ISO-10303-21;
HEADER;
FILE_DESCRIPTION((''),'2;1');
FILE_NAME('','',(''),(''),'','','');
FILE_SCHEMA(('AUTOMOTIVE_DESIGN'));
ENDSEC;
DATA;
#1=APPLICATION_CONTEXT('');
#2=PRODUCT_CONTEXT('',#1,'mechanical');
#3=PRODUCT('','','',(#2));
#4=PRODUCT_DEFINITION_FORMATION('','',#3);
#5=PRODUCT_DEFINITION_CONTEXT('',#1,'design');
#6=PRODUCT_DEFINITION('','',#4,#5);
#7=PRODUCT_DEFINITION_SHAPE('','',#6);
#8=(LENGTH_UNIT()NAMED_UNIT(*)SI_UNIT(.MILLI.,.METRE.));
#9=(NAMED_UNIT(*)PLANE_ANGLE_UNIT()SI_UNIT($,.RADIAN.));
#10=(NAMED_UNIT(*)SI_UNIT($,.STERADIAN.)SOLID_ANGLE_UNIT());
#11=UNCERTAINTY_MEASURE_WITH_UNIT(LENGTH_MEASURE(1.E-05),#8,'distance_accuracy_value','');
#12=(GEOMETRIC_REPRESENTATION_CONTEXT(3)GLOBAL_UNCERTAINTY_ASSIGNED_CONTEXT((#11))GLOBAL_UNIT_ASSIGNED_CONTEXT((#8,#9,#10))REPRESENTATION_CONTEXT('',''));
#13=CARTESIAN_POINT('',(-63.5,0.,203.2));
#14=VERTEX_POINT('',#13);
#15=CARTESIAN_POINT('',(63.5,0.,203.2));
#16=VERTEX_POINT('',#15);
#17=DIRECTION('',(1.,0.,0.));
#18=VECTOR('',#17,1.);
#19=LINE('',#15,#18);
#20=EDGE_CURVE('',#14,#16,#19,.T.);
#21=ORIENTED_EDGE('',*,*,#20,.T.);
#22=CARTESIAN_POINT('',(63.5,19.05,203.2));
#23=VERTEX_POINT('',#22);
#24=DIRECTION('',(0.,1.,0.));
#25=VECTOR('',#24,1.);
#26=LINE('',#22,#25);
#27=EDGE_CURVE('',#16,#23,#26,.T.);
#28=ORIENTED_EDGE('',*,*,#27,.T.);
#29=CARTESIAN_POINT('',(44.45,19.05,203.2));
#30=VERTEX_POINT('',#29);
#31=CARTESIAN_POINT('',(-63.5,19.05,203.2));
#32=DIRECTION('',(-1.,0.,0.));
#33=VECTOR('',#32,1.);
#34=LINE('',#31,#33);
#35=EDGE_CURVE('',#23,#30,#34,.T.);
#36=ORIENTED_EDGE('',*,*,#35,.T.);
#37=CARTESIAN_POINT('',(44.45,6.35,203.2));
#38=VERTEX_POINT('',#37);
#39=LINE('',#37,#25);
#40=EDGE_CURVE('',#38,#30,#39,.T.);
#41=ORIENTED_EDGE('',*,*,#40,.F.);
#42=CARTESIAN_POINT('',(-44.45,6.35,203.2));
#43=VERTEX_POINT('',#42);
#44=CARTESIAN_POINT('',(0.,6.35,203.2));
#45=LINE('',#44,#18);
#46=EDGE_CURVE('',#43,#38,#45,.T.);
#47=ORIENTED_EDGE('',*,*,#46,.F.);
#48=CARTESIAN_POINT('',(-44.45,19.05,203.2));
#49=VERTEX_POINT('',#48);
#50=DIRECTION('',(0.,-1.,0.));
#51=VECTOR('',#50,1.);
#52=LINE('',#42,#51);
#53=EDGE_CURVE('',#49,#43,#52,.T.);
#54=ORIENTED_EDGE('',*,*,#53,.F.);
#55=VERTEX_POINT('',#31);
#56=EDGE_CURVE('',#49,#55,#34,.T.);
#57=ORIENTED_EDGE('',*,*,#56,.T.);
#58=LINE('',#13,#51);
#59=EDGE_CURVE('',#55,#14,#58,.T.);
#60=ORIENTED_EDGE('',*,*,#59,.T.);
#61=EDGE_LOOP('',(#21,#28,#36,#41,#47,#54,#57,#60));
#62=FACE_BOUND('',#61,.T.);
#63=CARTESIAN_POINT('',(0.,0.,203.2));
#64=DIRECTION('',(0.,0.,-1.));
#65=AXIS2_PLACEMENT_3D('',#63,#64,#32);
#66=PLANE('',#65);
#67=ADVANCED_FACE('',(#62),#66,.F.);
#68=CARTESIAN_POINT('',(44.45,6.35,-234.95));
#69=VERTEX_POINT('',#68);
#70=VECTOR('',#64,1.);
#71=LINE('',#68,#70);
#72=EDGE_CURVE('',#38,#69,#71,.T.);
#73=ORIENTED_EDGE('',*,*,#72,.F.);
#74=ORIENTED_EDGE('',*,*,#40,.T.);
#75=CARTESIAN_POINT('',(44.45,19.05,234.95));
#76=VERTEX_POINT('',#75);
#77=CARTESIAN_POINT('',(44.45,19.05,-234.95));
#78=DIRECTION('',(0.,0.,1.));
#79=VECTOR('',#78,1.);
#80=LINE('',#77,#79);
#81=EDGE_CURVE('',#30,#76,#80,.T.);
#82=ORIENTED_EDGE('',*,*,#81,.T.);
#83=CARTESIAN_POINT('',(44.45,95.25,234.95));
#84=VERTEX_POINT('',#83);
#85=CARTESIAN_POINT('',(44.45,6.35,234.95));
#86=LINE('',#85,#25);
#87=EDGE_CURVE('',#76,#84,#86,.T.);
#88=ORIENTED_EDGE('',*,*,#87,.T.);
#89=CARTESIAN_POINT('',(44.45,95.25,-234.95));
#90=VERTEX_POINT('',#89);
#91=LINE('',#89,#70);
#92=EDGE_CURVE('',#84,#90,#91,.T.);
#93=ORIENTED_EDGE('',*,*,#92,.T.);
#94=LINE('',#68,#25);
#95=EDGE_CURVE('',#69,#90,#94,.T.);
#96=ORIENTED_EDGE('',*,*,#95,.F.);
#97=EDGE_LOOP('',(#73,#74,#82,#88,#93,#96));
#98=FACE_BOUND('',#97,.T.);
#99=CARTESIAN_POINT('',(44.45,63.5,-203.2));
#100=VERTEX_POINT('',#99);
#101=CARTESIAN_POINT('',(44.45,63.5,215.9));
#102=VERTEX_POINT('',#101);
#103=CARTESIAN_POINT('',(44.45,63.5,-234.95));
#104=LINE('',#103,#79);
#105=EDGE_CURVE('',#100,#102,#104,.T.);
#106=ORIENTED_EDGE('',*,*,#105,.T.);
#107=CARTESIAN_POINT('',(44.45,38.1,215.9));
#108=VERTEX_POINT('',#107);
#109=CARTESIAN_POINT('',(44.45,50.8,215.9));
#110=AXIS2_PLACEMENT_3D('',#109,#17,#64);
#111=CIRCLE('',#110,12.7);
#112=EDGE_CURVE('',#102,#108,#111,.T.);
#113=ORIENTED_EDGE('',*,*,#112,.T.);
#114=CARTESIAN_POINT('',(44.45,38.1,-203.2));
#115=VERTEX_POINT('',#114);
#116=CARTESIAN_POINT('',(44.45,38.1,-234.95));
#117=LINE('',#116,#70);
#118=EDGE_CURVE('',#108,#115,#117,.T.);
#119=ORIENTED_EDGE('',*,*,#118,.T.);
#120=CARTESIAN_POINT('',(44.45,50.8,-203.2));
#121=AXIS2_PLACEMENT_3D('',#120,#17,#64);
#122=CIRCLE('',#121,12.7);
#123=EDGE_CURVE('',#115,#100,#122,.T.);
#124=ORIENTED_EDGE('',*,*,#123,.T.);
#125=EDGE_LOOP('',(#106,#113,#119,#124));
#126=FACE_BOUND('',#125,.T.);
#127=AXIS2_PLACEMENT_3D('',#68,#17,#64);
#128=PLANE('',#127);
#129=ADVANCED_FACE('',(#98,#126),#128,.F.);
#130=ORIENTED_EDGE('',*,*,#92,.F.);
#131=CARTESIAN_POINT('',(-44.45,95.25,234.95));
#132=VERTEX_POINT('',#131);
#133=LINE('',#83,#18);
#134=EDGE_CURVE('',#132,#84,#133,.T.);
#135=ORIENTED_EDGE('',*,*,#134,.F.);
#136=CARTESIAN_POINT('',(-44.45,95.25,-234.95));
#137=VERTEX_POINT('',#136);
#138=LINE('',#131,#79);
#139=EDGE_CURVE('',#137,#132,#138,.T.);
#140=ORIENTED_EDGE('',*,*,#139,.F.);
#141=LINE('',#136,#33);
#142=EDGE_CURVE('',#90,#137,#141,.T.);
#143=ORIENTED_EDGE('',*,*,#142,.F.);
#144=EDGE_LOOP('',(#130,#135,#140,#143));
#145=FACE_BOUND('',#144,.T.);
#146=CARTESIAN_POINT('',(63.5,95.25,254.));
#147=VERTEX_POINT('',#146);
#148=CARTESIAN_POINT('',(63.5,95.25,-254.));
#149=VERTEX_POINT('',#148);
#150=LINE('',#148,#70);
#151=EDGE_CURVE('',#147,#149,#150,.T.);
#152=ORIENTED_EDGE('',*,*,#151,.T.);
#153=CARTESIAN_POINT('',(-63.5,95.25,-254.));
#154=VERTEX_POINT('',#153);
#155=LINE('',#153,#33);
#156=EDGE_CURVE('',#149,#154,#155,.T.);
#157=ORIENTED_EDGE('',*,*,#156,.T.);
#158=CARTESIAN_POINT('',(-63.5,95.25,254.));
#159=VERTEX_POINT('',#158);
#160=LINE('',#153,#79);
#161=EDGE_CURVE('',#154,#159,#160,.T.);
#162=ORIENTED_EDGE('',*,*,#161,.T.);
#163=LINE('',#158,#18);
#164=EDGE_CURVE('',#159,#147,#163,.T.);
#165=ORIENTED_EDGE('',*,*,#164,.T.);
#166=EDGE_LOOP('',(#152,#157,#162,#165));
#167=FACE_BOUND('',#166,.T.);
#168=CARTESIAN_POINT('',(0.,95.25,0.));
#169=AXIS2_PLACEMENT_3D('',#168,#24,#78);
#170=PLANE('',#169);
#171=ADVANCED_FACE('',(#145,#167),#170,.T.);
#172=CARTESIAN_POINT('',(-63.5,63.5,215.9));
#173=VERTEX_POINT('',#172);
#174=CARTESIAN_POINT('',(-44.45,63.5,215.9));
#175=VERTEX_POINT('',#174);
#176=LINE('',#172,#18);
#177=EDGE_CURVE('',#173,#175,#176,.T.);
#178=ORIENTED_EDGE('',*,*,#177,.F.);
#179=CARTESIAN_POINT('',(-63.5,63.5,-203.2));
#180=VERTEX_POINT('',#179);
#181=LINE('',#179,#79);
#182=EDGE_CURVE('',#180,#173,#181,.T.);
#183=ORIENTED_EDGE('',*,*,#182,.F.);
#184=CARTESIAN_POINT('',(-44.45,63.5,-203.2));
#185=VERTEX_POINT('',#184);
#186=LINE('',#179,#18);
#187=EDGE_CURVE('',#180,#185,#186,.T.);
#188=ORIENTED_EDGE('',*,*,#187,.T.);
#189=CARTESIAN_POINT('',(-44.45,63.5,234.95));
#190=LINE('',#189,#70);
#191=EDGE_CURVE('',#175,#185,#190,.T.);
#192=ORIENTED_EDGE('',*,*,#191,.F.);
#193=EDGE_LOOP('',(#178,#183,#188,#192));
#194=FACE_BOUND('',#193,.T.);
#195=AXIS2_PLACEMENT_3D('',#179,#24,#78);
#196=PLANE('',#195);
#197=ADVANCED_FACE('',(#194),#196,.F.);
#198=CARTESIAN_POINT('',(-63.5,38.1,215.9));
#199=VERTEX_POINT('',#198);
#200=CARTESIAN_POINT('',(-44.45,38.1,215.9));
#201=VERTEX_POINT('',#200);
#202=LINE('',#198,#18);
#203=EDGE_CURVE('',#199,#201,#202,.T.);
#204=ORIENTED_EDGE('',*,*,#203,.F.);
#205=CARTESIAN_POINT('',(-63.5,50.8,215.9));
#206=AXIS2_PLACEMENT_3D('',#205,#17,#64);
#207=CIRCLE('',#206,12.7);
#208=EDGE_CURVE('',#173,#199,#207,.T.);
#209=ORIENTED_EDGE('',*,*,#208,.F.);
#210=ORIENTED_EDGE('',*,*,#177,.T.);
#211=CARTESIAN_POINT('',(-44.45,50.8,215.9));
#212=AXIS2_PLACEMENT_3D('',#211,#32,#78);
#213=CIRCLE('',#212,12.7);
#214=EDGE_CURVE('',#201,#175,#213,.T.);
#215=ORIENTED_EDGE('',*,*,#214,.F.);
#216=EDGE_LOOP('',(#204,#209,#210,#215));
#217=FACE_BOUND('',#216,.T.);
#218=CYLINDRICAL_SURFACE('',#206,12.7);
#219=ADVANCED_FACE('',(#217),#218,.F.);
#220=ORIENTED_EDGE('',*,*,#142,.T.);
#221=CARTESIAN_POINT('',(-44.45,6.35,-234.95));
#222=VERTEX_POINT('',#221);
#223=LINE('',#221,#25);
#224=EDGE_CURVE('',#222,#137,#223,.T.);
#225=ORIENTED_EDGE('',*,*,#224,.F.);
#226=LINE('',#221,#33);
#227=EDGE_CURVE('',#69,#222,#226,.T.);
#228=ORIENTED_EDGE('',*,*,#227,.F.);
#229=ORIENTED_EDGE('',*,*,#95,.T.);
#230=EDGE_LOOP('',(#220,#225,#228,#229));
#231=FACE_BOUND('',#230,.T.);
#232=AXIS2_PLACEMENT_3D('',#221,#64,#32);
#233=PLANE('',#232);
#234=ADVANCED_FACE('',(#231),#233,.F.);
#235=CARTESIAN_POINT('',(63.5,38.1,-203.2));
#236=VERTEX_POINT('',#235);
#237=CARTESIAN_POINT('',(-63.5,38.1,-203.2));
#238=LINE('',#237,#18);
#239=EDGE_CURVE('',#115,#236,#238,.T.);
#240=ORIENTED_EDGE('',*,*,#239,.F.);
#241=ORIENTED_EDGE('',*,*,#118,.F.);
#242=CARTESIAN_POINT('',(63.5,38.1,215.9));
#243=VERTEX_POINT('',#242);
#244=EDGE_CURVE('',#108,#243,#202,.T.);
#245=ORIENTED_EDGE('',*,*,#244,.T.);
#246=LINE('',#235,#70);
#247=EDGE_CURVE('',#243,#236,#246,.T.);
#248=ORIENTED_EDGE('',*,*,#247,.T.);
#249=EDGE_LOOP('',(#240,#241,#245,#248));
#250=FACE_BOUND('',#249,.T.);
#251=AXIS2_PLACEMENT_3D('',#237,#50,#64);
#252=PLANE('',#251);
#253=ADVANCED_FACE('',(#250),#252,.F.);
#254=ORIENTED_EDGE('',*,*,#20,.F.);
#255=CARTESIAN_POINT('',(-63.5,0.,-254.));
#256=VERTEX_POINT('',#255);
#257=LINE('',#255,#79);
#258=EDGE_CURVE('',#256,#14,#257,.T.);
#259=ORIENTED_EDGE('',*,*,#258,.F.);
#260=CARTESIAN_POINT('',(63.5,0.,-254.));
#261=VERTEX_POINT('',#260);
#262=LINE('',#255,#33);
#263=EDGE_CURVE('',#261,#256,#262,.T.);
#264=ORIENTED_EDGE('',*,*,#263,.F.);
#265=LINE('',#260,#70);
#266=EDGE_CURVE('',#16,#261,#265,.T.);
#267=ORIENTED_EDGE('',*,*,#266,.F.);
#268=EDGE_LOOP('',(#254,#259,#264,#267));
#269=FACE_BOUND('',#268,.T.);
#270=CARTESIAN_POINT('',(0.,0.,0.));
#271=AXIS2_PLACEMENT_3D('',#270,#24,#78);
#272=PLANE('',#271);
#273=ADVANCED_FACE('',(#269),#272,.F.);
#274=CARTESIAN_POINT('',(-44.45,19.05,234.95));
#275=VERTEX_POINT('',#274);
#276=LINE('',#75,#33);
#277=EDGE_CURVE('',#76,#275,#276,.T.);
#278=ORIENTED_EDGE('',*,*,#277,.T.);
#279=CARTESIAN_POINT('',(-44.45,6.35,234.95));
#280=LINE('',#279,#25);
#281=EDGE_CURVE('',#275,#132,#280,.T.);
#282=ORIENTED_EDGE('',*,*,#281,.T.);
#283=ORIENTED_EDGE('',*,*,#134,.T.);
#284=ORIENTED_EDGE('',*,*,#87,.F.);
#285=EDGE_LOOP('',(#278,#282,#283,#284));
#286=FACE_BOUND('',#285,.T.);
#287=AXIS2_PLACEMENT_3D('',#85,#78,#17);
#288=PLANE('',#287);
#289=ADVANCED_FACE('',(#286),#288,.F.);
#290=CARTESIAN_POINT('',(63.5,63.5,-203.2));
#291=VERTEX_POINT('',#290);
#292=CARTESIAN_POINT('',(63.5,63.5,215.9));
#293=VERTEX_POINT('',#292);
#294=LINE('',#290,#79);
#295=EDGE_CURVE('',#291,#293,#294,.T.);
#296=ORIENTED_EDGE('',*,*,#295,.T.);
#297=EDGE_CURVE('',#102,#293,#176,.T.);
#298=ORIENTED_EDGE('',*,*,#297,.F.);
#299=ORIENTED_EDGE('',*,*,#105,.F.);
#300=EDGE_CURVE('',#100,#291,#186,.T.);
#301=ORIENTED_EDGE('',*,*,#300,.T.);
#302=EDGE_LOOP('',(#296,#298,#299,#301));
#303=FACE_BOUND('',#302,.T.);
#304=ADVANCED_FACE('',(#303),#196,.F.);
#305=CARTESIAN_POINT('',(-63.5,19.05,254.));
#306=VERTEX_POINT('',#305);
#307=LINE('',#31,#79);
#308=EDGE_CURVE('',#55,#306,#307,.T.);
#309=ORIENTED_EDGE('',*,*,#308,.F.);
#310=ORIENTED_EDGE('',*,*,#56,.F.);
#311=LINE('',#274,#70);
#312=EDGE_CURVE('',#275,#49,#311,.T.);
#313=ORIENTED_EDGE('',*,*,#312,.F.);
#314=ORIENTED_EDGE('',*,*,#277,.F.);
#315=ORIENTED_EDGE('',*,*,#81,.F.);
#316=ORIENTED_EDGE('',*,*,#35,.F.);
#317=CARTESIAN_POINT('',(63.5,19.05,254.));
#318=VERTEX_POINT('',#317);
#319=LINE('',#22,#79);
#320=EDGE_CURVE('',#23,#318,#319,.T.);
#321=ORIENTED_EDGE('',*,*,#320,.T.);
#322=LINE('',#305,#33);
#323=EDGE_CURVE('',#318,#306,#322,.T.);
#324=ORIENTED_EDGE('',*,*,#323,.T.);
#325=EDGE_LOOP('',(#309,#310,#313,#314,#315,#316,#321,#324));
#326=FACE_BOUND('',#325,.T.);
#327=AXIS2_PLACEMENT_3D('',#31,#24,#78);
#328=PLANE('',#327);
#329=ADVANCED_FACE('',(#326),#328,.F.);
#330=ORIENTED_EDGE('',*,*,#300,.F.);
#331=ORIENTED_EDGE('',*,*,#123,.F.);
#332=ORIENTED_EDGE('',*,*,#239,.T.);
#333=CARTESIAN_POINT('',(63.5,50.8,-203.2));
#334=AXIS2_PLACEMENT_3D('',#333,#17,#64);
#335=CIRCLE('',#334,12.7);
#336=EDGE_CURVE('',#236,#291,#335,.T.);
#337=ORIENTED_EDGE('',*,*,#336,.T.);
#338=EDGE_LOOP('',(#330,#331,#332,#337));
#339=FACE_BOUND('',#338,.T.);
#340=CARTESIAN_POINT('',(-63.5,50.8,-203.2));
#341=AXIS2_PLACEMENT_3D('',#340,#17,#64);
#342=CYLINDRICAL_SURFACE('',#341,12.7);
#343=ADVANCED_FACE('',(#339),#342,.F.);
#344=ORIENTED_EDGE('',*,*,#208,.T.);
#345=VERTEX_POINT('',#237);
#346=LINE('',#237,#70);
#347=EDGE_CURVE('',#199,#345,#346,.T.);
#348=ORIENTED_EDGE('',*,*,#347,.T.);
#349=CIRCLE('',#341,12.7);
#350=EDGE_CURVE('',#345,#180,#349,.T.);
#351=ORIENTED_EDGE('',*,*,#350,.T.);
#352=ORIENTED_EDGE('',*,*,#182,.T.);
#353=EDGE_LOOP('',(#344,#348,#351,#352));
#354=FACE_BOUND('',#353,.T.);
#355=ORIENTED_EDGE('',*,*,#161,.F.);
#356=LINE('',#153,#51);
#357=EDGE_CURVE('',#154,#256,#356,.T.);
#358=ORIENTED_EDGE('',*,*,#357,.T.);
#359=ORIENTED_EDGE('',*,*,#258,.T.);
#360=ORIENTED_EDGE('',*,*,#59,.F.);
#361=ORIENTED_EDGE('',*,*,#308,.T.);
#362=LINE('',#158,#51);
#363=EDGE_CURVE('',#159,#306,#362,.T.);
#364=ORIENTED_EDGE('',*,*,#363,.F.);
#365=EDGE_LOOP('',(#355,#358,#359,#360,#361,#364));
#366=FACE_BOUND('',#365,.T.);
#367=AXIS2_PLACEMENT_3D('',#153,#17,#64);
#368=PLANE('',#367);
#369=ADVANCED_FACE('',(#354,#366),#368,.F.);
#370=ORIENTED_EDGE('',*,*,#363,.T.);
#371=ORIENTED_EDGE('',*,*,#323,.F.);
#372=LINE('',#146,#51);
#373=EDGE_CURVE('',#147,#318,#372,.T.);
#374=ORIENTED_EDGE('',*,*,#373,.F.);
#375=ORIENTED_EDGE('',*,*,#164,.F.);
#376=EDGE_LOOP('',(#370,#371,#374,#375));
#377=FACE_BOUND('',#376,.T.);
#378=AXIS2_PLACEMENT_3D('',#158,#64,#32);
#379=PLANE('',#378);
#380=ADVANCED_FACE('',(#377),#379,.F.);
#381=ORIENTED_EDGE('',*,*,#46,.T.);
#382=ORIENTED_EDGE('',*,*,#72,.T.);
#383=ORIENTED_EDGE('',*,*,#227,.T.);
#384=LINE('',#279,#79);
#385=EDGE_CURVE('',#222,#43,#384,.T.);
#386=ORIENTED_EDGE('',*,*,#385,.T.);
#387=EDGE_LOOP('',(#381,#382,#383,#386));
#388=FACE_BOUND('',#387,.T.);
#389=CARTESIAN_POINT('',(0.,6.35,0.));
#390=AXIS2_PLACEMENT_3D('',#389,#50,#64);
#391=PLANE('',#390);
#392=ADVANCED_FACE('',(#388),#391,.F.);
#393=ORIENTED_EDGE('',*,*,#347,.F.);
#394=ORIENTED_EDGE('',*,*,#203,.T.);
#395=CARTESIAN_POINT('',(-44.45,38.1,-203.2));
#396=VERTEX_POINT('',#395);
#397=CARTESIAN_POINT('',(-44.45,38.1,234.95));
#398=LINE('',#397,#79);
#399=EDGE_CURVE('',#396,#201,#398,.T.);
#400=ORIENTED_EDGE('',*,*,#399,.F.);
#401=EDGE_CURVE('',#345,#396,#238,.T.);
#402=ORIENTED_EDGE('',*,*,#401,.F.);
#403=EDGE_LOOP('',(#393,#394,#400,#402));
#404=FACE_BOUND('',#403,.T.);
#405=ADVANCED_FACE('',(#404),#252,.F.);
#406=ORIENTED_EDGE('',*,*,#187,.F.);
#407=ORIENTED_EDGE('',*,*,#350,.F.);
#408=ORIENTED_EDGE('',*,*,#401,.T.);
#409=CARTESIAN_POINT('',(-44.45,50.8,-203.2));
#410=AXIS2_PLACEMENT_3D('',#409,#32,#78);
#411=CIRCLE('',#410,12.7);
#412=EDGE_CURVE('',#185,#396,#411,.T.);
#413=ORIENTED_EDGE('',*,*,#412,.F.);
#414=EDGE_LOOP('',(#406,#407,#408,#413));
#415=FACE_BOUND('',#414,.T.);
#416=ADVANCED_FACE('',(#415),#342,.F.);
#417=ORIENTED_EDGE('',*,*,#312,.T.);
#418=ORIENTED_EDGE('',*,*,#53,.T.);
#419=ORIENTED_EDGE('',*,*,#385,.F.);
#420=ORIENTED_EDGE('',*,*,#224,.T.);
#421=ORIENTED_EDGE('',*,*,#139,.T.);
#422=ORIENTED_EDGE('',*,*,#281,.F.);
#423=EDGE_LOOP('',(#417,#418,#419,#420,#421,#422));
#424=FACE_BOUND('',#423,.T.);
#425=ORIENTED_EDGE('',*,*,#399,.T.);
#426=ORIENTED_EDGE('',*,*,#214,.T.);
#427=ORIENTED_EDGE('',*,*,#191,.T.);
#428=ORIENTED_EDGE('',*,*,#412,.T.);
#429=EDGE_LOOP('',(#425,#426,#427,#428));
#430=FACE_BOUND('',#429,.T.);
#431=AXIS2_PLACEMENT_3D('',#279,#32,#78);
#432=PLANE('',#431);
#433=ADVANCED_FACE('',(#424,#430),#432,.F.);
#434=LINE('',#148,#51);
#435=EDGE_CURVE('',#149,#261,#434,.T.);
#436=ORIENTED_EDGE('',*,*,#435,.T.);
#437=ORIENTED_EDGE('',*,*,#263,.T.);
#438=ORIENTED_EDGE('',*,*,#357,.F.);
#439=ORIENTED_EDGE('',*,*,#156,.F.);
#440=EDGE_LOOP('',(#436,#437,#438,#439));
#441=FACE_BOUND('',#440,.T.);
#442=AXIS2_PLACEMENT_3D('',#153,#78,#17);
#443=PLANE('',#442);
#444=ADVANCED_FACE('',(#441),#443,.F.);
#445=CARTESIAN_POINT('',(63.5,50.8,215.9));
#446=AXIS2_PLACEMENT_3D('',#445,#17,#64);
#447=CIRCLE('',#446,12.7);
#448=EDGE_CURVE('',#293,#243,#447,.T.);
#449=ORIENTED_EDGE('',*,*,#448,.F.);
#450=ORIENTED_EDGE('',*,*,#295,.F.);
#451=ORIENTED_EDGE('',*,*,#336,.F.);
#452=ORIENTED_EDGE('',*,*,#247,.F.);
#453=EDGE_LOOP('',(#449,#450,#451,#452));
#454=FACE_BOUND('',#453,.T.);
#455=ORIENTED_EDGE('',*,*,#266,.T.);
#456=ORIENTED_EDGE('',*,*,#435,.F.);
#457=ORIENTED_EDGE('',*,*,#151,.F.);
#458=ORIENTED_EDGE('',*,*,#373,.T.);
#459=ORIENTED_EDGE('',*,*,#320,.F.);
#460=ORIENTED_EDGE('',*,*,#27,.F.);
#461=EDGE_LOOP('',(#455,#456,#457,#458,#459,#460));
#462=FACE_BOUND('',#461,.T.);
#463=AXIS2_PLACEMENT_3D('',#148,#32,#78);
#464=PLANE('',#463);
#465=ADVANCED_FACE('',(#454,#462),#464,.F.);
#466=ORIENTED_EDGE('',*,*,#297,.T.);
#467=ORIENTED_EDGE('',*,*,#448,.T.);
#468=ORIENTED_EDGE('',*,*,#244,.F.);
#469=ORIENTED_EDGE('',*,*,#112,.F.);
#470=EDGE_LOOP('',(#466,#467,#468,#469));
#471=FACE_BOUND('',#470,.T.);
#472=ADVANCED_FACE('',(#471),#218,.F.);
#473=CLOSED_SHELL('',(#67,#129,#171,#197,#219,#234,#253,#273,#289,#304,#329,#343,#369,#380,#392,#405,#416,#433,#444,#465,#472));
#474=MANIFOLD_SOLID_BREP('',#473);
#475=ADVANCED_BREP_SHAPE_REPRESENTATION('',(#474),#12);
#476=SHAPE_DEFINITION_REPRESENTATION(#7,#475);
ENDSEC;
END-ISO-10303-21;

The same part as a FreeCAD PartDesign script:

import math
import FreeCAD as App
import Part
import Sketcher
Q = App.Units.Quantity


def add_polygon(sketch, points):
    """Adds a closed chain of lines whose ends are joined by coincident constraints."""
    first, n = sketch.GeometryCount, len(points)
    for a, b in zip(points, points[1:] + points[:1]):
        sketch.addGeometry(Part.LineSegment(App.Vector(*a, 0), App.Vector(*b, 0)), False)
    for i in range(n):
        sketch.addConstraint(Sketcher.Constraint("Coincident", first + i, 2, first + (i + 1) % n, 1))

doc = App.newDocument("Part")
body = doc.addObject("PartDesign::Body", "Body")

# Sketch on XZ plane
sketch1 = doc.addObject("Sketcher::SketchObject", "Sketch")
body.addObject(sketch1)
sketch1.AttachmentSupport = (doc.XZ_Plane, [""])
sketch1.MapMode = "FlatFace"
add_polygon(sketch1, [(-64, -254), (-64, 254), (64, 254), (64, -254)])  # lines 0-3
sketch1.addConstraint([
    Sketcher.Constraint("Vertical", 0),
    Sketcher.Constraint("Horizontal", 1),
    Sketcher.Constraint("Vertical", 2),
    Sketcher.Constraint("Horizontal", 3),
    Sketcher.Constraint("Symmetric", 0, 2, 2, 2, -1, 1),
    Sketcher.Constraint("DistanceX", 1, 1, 1, 2, Q("5 in")),
    Sketcher.Constraint("DistanceY", 0, 1, 0, 2, Q("20 in")),
])
pad1 = doc.addObject("PartDesign::Pad", "Pad")
body.addObject(pad1)
pad1.Profile = sketch1
pad1.Length = Q("3.75 in")
pad1.Reversed = True

# Sketch on XZ plane
sketch2 = doc.addObject("Sketcher::SketchObject", "Sketch001")
body.addObject(sketch2)
sketch2.AttachmentSupport = (doc.XZ_Plane, [""])
sketch2.MapMode = "FlatFace"
sketch2.AttachmentOffset = App.Placement(App.Vector(0, 0, -3.75 * 25.4), App.Rotation())
add_polygon(sketch2, [(-44, -235), (-44, 235), (44, 235), (44, -235)])  # lines 0-3
sketch2.addConstraint([
    Sketcher.Constraint("Vertical", 0),
    Sketcher.Constraint("Horizontal", 1),
    Sketcher.Constraint("Vertical", 2),
    Sketcher.Constraint("Horizontal", 3),
    Sketcher.Constraint("Symmetric", 0, 2, 2, 2, -1, 1),
    Sketcher.Constraint("DistanceX", 1, 1, 1, 2, Q("3.5 in")),
    Sketcher.Constraint("DistanceY", 0, 1, 0, 2, Q("18.5 in")),
])
pocket1 = doc.addObject("PartDesign::Pocket", "Pocket")
body.addObject(pocket1)
pocket1.Profile = sketch2
pocket1.Length = Q("3.5 in")
pocket1.Reversed = True

# Sketch on YZ plane
sketch3 = doc.addObject("Sketcher::SketchObject", "Sketch002")
body.addObject(sketch3)
sketch3.AttachmentSupport = (doc.YZ_Plane, [""])
sketch3.MapMode = "FlatFace"
sketch3.AttachmentOffset = App.Placement(App.Vector(0, 0, 2.5 * 25.4), App.Rotation())
sketch3.addGeometry([
    Part.LineSegment(App.Vector(38, 216, 0), App.Vector(38, -203, 0)),
    Part.ArcOfCircle(Part.Circle(App.Vector(51, -203, 0), App.Vector(0, 0, 1), 13), math.radians(180), math.radians(360)),
    Part.LineSegment(App.Vector(64, -203, 0), App.Vector(64, 216, 0)),
    Part.ArcOfCircle(Part.Circle(App.Vector(51, 216, 0), App.Vector(0, 0, 1), 13), math.radians(0), math.radians(180)),
], False)
sketch3.addConstraint([
    Sketcher.Constraint("Tangent", 0, 2, 1, 1),
    Sketcher.Constraint("Tangent", 1, 2, 2, 1),
    Sketcher.Constraint("Tangent", 2, 2, 3, 1),
    Sketcher.Constraint("Tangent", 3, 2, 0, 1),
    Sketcher.Constraint("Vertical", 0),
    Sketcher.Constraint("Vertical", 2),
    Sketcher.Constraint("Radius", 1, Q("0.5 in")),
    Sketcher.Constraint("DistanceY", 0, 2, 0, 1, Q("16.5 in")),
    Sketcher.Constraint("DistanceX", -1, 1, 1, 3, Q("2 in")),
    Sketcher.Constraint("DistanceY", 1, 3, -1, 1, Q("8 in")),
])
pocket2 = doc.addObject("PartDesign::Pocket", "Pocket001")
body.addObject(pocket2)
pocket2.Profile = sketch3
pocket2.Type = "ThroughAll"

# Sketch on XY plane
sketch4 = doc.addObject("Sketcher::SketchObject", "Sketch003")
body.addObject(sketch4)
sketch4.AttachmentSupport = (doc.XY_Plane, [""])
sketch4.MapMode = "FlatFace"
sketch4.AttachmentOffset = App.Placement(App.Vector(0, 0, 10 * 25.4), App.Rotation())
add_polygon(sketch4, [(-64, 19), (-64, 0), (64, 0), (64, 19)])  # lines 0-3
sketch4.addConstraint([
    Sketcher.Constraint("Vertical", 0),
    Sketcher.Constraint("Horizontal", 1),
    Sketcher.Constraint("Vertical", 2),
    Sketcher.Constraint("Horizontal", 3),
    Sketcher.Constraint("Symmetric", 0, 2, 1, 2, -1, 1),
    Sketcher.Constraint("DistanceX", 1, 1, 1, 2, Q("5 in")),
    Sketcher.Constraint("DistanceY", 0, 2, 0, 1, Q("0.75 in")),
])
pocket3 = doc.addObject("PartDesign::Pocket", "Pocket002")
body.addObject(pocket3)
pocket3.Profile = sketch4
pocket3.Length = Q("2 in")

doc.recompute()
